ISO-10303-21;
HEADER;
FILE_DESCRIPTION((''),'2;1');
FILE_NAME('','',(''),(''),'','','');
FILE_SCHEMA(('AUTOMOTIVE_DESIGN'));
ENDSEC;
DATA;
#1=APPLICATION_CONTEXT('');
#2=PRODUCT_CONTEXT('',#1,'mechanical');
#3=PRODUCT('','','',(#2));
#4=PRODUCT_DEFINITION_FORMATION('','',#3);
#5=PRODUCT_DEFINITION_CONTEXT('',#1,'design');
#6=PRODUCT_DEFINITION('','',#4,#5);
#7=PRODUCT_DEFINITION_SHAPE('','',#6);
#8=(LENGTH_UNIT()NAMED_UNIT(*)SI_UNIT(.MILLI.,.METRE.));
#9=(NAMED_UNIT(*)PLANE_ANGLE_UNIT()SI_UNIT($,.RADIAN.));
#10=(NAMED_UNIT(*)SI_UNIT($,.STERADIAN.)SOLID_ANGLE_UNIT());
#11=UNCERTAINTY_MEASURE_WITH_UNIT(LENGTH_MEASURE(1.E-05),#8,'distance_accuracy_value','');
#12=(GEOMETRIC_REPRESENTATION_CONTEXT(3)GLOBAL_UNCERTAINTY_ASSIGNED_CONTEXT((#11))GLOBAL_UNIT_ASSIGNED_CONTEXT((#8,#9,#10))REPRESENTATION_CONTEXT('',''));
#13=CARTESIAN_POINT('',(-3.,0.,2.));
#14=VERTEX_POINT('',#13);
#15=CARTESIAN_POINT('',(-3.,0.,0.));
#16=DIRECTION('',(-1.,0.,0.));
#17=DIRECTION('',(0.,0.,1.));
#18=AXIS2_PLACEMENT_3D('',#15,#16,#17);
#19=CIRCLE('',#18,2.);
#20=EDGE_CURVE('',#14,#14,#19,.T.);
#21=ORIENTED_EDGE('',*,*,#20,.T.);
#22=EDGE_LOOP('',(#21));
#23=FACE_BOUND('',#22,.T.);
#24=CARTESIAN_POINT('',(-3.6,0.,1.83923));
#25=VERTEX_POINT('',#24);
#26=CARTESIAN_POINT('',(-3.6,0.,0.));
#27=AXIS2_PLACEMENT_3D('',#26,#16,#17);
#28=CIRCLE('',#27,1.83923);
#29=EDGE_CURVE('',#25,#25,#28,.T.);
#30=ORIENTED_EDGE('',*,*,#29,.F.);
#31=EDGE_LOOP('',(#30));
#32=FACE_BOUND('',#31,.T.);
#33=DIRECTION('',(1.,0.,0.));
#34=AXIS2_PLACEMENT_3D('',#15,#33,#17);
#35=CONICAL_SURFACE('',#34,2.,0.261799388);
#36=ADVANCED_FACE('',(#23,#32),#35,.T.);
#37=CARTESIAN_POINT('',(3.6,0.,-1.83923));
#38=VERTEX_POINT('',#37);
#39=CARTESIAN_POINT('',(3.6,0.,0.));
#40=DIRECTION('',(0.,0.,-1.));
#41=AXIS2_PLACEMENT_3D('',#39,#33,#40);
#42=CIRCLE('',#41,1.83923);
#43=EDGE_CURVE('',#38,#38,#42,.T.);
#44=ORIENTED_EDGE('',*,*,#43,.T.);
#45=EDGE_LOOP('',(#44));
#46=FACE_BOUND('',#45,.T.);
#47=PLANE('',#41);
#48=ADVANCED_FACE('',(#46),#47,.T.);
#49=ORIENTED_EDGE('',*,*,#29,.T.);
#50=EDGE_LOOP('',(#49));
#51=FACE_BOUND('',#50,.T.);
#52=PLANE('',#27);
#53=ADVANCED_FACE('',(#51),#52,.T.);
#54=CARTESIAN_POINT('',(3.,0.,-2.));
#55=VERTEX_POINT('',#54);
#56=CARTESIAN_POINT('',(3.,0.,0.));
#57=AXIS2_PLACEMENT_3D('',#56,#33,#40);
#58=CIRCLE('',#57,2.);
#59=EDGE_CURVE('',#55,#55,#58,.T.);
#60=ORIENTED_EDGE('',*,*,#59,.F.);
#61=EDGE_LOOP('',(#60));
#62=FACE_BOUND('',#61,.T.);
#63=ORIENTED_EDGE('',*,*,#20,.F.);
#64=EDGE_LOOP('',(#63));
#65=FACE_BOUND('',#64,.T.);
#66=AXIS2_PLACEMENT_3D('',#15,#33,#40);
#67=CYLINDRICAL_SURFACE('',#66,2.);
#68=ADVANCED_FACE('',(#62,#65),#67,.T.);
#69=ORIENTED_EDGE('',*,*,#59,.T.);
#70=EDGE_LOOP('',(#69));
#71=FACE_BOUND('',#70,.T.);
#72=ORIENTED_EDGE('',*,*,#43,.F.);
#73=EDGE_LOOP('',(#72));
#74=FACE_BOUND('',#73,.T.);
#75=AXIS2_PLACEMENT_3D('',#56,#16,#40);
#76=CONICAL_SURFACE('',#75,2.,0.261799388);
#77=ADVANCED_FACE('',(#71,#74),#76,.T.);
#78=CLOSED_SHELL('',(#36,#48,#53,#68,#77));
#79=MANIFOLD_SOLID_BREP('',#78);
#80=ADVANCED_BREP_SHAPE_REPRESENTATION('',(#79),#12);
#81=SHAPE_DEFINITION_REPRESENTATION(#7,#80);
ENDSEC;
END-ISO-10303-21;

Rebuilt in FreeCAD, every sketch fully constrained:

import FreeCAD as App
import Part
import Sketcher

V = App.Vector
Q = App.Units.Quantity

doc = App.newDocument("Part")
params = doc.addObject("Spreadsheet::Sheet", "Params")
for row, (alias, value) in enumerate([
    ("sketch1_diameter", "4 mm"),
    ("pad1_length", "3 mm"),
    ("pad1_length2", "3 mm"),
    ("sketch2_diameter", "4 mm"),
    ("pad2_length", "0.6 mm"),
    ("pad2_taper", "-15 deg"),
    ("sketch3_diameter", "4 mm"),
    ("pad3_length", "0.6 mm"),
    ("pad3_taper", "-15 deg"),
], start=1):
    params.set(f"A{row}", alias)
    params.set(f"B{row}", "=" + value)
    params.setAlias(f"B{row}", alias)

body = doc.addObject("PartDesign::Body", "Body")

# Sketch on YZ plane
sketch1 = body.newObject("Sketcher::SketchObject", "Sketch")
sketch1.AttachmentSupport = (doc.getObject("YZ_Plane"), [""])
sketch1.MapMode = "FlatFace"
sketch1.addGeometry(Part.Circle(V(0, 0, 0), V(0, 0, 1), 2), False)
sketch1.addConstraint(Sketcher.Constraint("Coincident", 0, 3, -1, 1))
sketch1.addConstraint(Sketcher.Constraint("Diameter", 0, Q("4 mm")))
sketch1.setExpression("Constraints[1]", "Params.sketch1_diameter")
pad1 = body.newObject("PartDesign::Pad", "Pad")
pad1.Profile = sketch1
pad1.Type = "TwoLengths"
pad1.setExpression("Length", "Params.pad1_length")
pad1.setExpression("Length2", "Params.pad1_length2")

# Sketch on YZ plane
sketch2 = body.newObject("Sketcher::SketchObject", "Sketch001")
sketch2.AttachmentSupport = (doc.getObject("YZ_Plane"), [""])
sketch2.MapMode = "FlatFace"
sketch2.AttachmentOffset = App.Placement(V(0, 0, 3), App.Rotation())
sketch2.addGeometry(Part.Circle(V(0, 0, 0), V(0, 0, 1), 2), False)
sketch2.addConstraint(Sketcher.Constraint("Coincident", 0, 3, -1, 1))
sketch2.addConstraint(Sketcher.Constraint("Diameter", 0, Q("4 mm")))
sketch2.setExpression("Constraints[1]", "Params.sketch2_diameter")
pad2 = body.newObject("PartDesign::Pad", "Pad001")
pad2.Profile = sketch2
pad2.setExpression("Length", "Params.pad2_length")
pad2.setExpression("TaperAngle", "Params.pad2_taper")

# Sketch on YZ plane
sketch3 = body.newObject("Sketcher::SketchObject", "Sketch002")
sketch3.AttachmentSupport = (doc.getObject("YZ_Plane"), [""])
sketch3.MapMode = "FlatFace"
sketch3.AttachmentOffset = App.Placement(V(0, 0, -3), App.Rotation())
sketch3.addGeometry(Part.Circle(V(0, 0, 0), V(0, 0, 1), 2), False)
sketch3.addConstraint(Sketcher.Constraint("Coincident", 0, 3, -1, 1))
sketch3.addConstraint(Sketcher.Constraint("Diameter", 0, Q("4 mm")))
sketch3.setExpression("Constraints[1]", "Params.sketch3_diameter")
pad3 = body.newObject("PartDesign::Pad", "Pad002")
pad3.Profile = sketch3
pad3.setExpression("Length", "Params.pad3_length")
pad3.Reversed = True
pad3.setExpression("TaperAngle", "Params.pad3_taper")

doc.recompute()
